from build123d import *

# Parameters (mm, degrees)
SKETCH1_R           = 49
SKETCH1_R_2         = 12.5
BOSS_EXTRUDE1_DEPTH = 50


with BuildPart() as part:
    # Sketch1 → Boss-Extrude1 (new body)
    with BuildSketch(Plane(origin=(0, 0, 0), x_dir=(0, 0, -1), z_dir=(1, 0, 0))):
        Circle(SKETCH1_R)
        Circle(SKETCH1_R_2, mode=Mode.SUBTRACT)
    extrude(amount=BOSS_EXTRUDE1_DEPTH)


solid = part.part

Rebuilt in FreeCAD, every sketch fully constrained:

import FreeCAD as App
import Part
import Sketcher

V = App.Vector

doc = App.newDocument("Part")
body = doc.addObject("PartDesign::Body", "Body")

# Sketch on YZ plane
sketch1 = doc.addObject("Sketcher::SketchObject", "Sketch")
body.addObject(sketch1)
sketch1.AttachmentSupport = (doc.YZ_Plane, [""])
sketch1.MapMode = "FlatFace"
sketch1.addGeometry(Part.Circle(V(0, 0, 0), V(0, 0, 1), 49), False)
sketch1.addGeometry(Part.Circle(V(0, 0, 0), V(0, 0, 1), 12), False)
sketch1.addConstraint(Sketcher.Constraint("Coincident", 0, 3, -1, 1))
sketch1.addConstraint(Sketcher.Constraint("Coincident", 1, 3, -1, 1))
sketch1.addConstraint(Sketcher.Constraint("Diameter", 0, 98.0))
sketch1.addConstraint(Sketcher.Constraint("Diameter", 1, 25.0))
pad1 = doc.addObject("PartDesign::Pad", "Pad")
body.addObject(pad1)
pad1.Profile = sketch1
pad1.Length = 50

doc.recompute()
